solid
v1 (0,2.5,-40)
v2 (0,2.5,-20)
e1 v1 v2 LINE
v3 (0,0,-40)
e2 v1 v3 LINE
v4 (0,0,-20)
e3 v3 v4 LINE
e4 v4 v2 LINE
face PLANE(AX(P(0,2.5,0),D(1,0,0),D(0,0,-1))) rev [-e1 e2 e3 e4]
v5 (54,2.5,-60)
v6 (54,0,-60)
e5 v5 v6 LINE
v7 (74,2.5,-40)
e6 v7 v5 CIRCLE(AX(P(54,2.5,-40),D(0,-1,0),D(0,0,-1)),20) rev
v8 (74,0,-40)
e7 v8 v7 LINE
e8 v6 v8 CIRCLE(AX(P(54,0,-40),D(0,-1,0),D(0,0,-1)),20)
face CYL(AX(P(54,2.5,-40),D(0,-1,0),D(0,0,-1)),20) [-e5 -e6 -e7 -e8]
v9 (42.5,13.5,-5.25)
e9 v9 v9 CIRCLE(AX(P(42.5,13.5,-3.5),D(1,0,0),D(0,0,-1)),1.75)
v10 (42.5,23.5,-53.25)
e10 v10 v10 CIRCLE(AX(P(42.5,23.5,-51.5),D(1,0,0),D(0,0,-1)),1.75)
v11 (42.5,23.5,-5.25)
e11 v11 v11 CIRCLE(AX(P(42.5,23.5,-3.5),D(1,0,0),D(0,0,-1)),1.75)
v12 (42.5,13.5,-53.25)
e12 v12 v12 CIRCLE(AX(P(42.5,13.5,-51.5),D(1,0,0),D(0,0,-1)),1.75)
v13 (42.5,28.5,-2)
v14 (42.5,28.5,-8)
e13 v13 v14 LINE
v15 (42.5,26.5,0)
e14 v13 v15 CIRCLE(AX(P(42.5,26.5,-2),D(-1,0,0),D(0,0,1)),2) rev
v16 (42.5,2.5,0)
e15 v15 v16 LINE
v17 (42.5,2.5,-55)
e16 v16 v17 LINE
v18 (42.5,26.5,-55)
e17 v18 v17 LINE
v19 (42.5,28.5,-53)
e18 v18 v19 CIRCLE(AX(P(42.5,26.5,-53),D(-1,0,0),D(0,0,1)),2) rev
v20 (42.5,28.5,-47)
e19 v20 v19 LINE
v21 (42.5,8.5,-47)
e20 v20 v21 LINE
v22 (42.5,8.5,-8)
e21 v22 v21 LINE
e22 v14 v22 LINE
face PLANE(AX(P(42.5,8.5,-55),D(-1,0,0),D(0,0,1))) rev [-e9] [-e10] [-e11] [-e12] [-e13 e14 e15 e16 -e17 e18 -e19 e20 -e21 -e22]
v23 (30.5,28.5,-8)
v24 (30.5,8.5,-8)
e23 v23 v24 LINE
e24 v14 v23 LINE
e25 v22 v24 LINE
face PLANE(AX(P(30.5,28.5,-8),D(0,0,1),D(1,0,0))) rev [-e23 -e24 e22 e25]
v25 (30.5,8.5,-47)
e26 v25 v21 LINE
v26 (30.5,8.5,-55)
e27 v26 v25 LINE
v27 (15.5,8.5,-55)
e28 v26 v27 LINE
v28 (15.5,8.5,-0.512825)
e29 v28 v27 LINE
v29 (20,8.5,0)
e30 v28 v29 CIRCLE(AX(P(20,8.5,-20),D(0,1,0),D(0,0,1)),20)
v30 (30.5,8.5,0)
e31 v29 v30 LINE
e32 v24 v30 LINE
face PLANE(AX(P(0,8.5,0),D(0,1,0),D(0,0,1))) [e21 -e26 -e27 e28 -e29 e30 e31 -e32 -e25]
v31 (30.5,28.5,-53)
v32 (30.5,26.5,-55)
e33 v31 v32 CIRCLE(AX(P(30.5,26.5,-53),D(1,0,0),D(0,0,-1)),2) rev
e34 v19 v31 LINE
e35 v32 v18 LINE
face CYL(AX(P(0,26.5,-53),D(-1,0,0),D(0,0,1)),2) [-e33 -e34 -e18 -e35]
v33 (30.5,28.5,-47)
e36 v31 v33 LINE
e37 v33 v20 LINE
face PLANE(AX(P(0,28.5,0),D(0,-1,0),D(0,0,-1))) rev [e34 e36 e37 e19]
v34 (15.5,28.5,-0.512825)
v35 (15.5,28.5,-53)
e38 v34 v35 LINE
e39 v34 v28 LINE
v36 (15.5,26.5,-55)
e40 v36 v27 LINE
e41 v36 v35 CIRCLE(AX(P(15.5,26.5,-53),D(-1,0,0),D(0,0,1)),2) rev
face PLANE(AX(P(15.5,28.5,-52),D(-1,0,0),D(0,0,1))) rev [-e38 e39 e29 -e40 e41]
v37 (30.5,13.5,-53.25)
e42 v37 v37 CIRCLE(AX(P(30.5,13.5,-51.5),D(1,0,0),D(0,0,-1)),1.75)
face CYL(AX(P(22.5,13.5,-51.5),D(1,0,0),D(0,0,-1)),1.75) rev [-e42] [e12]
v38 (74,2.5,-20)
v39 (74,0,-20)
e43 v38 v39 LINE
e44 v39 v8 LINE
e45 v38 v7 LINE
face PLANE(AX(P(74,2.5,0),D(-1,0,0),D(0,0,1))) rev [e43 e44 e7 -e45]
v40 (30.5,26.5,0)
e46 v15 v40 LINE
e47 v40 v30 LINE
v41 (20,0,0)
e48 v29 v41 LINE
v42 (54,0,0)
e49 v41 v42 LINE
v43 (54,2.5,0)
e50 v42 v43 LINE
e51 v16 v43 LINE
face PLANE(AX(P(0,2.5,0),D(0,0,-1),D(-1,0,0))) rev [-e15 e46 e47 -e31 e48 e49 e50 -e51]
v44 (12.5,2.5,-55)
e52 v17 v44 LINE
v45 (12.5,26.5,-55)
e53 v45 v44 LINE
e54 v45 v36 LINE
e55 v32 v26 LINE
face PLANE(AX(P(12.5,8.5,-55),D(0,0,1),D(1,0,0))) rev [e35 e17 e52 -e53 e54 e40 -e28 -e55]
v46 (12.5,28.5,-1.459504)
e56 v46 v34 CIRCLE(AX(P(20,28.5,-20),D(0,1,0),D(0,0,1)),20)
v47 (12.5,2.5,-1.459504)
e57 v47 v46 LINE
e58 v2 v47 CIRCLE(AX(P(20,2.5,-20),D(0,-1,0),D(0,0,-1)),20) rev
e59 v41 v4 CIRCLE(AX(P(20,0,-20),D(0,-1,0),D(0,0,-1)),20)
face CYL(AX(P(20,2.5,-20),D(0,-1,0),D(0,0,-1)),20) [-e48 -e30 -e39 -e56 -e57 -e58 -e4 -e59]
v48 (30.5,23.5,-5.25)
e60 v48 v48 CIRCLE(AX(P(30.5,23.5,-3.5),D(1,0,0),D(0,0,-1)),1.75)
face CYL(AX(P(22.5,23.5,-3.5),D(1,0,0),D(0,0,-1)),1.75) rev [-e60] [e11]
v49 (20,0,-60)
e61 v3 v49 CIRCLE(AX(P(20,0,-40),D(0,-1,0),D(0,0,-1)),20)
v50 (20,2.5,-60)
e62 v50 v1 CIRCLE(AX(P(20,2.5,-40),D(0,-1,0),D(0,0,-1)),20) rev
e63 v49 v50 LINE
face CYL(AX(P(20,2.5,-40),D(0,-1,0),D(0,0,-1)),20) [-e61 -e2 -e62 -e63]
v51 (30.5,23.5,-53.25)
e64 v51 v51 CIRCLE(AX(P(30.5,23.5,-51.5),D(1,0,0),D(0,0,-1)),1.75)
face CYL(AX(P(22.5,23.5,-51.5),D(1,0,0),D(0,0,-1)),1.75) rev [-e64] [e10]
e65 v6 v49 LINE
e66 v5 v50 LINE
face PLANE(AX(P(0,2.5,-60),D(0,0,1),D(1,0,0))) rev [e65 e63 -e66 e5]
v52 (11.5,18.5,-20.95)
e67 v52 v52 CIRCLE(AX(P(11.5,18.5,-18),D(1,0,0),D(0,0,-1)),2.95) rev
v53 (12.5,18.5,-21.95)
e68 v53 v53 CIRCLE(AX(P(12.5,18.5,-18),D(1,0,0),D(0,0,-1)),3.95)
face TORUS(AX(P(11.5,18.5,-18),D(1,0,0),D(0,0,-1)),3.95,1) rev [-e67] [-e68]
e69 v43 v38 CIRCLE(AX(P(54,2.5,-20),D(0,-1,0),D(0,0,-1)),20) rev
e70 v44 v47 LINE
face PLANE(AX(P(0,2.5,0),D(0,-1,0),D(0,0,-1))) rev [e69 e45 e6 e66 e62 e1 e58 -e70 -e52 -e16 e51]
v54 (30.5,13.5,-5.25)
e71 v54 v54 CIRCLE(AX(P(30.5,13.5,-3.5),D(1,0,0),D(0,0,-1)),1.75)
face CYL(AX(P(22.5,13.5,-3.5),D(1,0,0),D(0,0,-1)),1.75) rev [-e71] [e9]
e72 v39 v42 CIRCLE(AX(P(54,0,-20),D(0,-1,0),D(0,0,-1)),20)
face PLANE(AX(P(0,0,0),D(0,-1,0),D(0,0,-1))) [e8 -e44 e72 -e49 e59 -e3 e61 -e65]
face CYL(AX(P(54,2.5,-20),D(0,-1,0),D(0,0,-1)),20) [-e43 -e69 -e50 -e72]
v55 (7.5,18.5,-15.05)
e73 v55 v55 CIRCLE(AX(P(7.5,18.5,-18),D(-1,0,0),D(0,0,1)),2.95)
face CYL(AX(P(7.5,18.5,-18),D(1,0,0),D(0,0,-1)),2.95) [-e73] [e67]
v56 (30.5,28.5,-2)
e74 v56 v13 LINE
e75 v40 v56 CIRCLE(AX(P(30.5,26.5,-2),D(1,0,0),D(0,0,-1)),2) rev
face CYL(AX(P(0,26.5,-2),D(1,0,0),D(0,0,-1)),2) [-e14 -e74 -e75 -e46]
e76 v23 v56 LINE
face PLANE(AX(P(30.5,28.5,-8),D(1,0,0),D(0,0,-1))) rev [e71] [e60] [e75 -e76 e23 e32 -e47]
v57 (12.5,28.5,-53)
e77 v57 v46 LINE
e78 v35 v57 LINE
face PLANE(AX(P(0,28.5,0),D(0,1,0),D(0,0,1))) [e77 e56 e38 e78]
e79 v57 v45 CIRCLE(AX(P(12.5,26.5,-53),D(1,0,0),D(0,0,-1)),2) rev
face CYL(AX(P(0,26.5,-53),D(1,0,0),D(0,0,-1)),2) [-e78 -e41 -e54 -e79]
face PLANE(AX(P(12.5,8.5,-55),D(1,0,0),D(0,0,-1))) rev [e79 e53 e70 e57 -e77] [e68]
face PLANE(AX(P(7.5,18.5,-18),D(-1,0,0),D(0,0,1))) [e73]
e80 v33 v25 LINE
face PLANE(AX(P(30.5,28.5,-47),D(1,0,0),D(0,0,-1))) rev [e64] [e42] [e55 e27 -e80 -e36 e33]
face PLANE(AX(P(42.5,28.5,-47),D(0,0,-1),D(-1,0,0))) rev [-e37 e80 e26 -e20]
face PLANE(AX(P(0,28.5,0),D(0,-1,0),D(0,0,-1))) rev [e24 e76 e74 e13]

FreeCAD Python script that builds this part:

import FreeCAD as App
import Part
import Sketcher
from FreeCAD import Vector


def edges_at(feature, points):
    """Names of the edges that pass closest to the given points."""
    edges = feature.Shape.Edges
    near = lambda p: min(range(len(edges)), key=lambda i: edges[i].distToShape(Part.Vertex(*p))[0])
    return sorted({f"Edge{near(p) + 1}" for p in points})

doc = App.newDocument("Part")
body = doc.addObject("PartDesign::Body", "Body")

# Sketch on XZ plane
sketch1 = body.newObject("Sketcher::SketchObject", "Sketch")
sketch1.AttachmentSupport = (doc.getObject("XZ_Plane"), [""])
sketch1.MapMode = "FlatFace"
sketch1.addGeometry(Part.LineSegment(Vector(0, -60, 0), Vector(0, 0, 0)), False)
sketch1.addGeometry(Part.LineSegment(Vector(0, 0, 0), Vector(74, 0, 0)), False)
sketch1.addGeometry(Part.LineSegment(Vector(74, 0, 0), Vector(74, -60, 0)), False)
sketch1.addGeometry(Part.LineSegment(Vector(74, -60, 0), Vector(0, -60, 0)), False)
sketch1.addConstraint(Sketcher.Constraint("Coincident", 0, 2, 1, 1))
sketch1.addConstraint(Sketcher.Constraint("Coincident", 1, 2, 2, 1))
sketch1.addConstraint(Sketcher.Constraint("Coincident", 2, 2, 3, 1))
sketch1.addConstraint(Sketcher.Constraint("Coincident", 3, 2, 0, 1))
sketch1.addConstraint(Sketcher.Constraint("Vertical", 0))
sketch1.addConstraint(Sketcher.Constraint("Horizontal", 1))
sketch1.addConstraint(Sketcher.Constraint("Vertical", 2))
sketch1.addConstraint(Sketcher.Constraint("Horizontal", 3))
sketch1.addConstraint(Sketcher.Constraint("Coincident", 0, 2, -1, 1))
sketch1.addConstraint(Sketcher.Constraint("DistanceX", 1, 1, 1, 2, 74.0))
sketch1.addConstraint(Sketcher.Constraint("DistanceY", 0, 1, 0, 2, 60.0))
pad1 = body.newObject("PartDesign::Pad", "Pad")
pad1.Profile = sketch1
pad1.Length = 2.5
pad1.Reversed = True

# Sketch on XZ plane
sketch2 = body.newObject("Sketcher::SketchObject", "Sketch001")
sketch2.AttachmentSupport = (doc.getObject("XZ_Plane"), [""])
sketch2.MapMode = "FlatFace"
sketch2.AttachmentOffset = App.Placement(Vector(0, 0, -2.5), App.Rotation())
sketch2.addGeometry(Part.LineSegment(Vector(12, -55, 0), Vector(12, 0, 0)), False)
sketch2.addGeometry(Part.LineSegment(Vector(12, 0, 0), Vector(42, 0, 0)), False)
sketch2.addGeometry(Part.LineSegment(Vector(42, 0, 0), Vector(42, -55, 0)), False)
sketch2.addGeometry(Part.LineSegment(Vector(42, -55, 0), Vector(12, -55, 0)), False)
sketch2.addConstraint(Sketcher.Constraint("Coincident", 0, 2, 1, 1))
sketch2.addConstraint(Sketcher.Constraint("Coincident", 1, 2, 2, 1))
sketch2.addConstraint(Sketcher.Constraint("Coincident", 2, 2, 3, 1))
sketch2.addConstraint(Sketcher.Constraint("Coincident", 3, 2, 0, 1))
sketch2.addConstraint(Sketcher.Constraint("Vertical", 0))
sketch2.addConstraint(Sketcher.Constraint("Horizontal", 1))
sketch2.addConstraint(Sketcher.Constraint("Vertical", 2))
sketch2.addConstraint(Sketcher.Constraint("Horizontal", 3))
sketch2.addConstraint(Sketcher.Constraint("PointOnObject", 0, 2, -1))
sketch2.addConstraint(Sketcher.Constraint("DistanceX", 1, 1, 1, 2, 30.0))
sketch2.addConstraint(Sketcher.Constraint("DistanceY", 0, 1, 0, 2, 55.0))
sketch2.addConstraint(Sketcher.Constraint("DistanceX", -1, 1, 0, 2, 12.5))
pad2 = body.newObject("PartDesign::Pad", "Pad001")
pad2.Profile = sketch2
pad2.Length = 6
pad2.Reversed = True

# Sketch on XZ plane
sketch3 = body.newObject("Sketcher::SketchObject", "Sketch002")
sketch3.AttachmentSupport = (doc.getObject("XZ_Plane"), [""])
sketch3.MapMode = "FlatFace"
sketch3.AttachmentOffset = App.Placement(Vector(0, 0, -8.5), App.Rotation())
sketch3.addGeometry(Part.LineSegment(Vector(30.5, -55, 0), Vector(30.5, -47, 0)), False)
sketch3.addGeometry(Part.LineSegment(Vector(30.5, -47, 0), Vector(42.5, -47, 0)), False)
sketch3.addGeometry(Part.LineSegment(Vector(42.5, -47, 0), Vector(42.5, -55, 0)), False)
sketch3.addGeometry(Part.LineSegment(Vector(42.5, -55, 0), Vector(30.5, -55, 0)), False)
sketch3.addGeometry(Part.LineSegment(Vector(12.5, -55, 0), Vector(12.5, 0, 0)), False)
sketch3.addGeometry(Part.LineSegment(Vector(12.5, 0, 0), Vector(15.5, 0, 0)), False)
sketch3.addGeometry(Part.LineSegment(Vector(15.5, 0, 0), Vector(15.5, -55, 0)), False)
sketch3.addGeometry(Part.LineSegment(Vector(15.5, -55, 0), Vector(12.5, -55, 0)), False)
sketch3.addGeometry(Part.LineSegment(Vector(30.5, -8, 0), Vector(30.5, 0, 0)), False)
sketch3.addGeometry(Part.LineSegment(Vector(30.5, 0, 0), Vector(42.5, 0, 0)), False)
sketch3.addGeometry(Part.LineSegment(Vector(42.5, 0, 0), Vector(42.5, -8, 0)), False)
sketch3.addGeometry(Part.LineSegment(Vector(42.5, -8, 0), Vector(30.5, -8, 0)), False)
sketch3.addConstraint(Sketcher.Constraint("Coincident", 0, 2, 1, 1))
sketch3.addConstraint(Sketcher.Constraint("Coincident", 1, 2, 2, 1))
sketch3.addConstraint(Sketcher.Constraint("Coincident", 2, 2, 3, 1))
sketch3.addConstraint(Sketcher.Constraint("Coincident", 3, 2, 0, 1))
sketch3.addConstraint(Sketcher.Constraint("Coincident", 4, 2, 5, 1))
sketch3.addConstraint(Sketcher.Constraint("Coincident", 5, 2, 6, 1))
sketch3.addConstraint(Sketcher.Constraint("Coincident", 6, 2, 7, 1))
sketch3.addConstraint(Sketcher.Constraint("Coincident", 7, 2, 4, 1))
sketch3.addConstraint(Sketcher.Constraint("Coincident", 8, 2, 9, 1))
sketch3.addConstraint(Sketcher.Constraint("Coincident", 9, 2, 10, 1))
sketch3.addConstraint(Sketcher.Constraint("Coincident", 10, 2, 11, 1))
sketch3.addConstraint(Sketcher.Constraint("Coincident", 11, 2, 8, 1))
sketch3.addConstraint(Sketcher.Constraint("Vertical", 0))
sketch3.addConstraint(Sketcher.Constraint("Horizontal", 1))
sketch3.addConstraint(Sketcher.Constraint("Vertical", 2))
sketch3.addConstraint(Sketcher.Constraint("Horizontal", 3))
sketch3.addConstraint(Sketcher.Constraint("Vertical", 4))
sketch3.addConstraint(Sketcher.Constraint("Horizontal", 5))
sketch3.addConstraint(Sketcher.Constraint("Vertical", 6))
sketch3.addConstraint(Sketcher.Constraint("Horizontal", 7))
sketch3.addConstraint(Sketcher.Constraint("Vertical", 8))
sketch3.addConstraint(Sketcher.Constraint("Horizontal", 9))
sketch3.addConstraint(Sketcher.Constraint("Vertical", 10))
sketch3.addConstraint(Sketcher.Constraint("Horizontal", 11))
sketch3.addConstraint(Sketcher.Constraint("PointOnObject", 4, 2, -1))
sketch3.addConstraint(Sketcher.Constraint("PointOnObject", 8, 2, -1))
sketch3.addConstraint(Sketcher.Constraint("Horizontal", 3, 2, 6, 2))
sketch3.addConstraint(Sketcher.Constraint("Vertical", 3, 2, 8, 2))
sketch3.addConstraint(Sketcher.Constraint("Vertical", 2, 2, 9, 2))
sketch3.addConstraint(Sketcher.Constraint("Equal", 2, 8))
sketch3.addConstraint(Sketcher.Constraint("DistanceX", 1, 1, 1, 2, 12.0))
sketch3.addConstraint(Sketcher.Constraint("DistanceX", 5, 1, 5, 2, 3.0))
sketch3.addConstraint(Sketcher.Constraint("DistanceY", 0, 1, 0, 2, 8.0))
sketch3.addConstraint(Sketcher.Constraint("DistanceY", 4, 1, 4, 2, 55.0))
sketch3.addConstraint(Sketcher.Constraint("DistanceX", 4, 2, 0, 2, 18.0))
sketch3.addConstraint(Sketcher.Constraint("DistanceX", -1, 1, 0, 2, 30.5))
pad3 = body.newObject("PartDesign::Pad", "Pad002")
pad3.Profile = sketch3
pad3.Length = 20
pad3.Reversed = True

# Sketch on YZ plane
sketch4 = body.newObject("Sketcher::SketchObject", "Sketch003")
sketch4.AttachmentSupport = (doc.getObject("YZ_Plane"), [""])
sketch4.MapMode = "FlatFace"
sketch4.AttachmentOffset = App.Placement(Vector(0, 0, 42.5), App.Rotation())
sketch4.addGeometry(Part.Circle(Vector(23.5, -3.5, 0), Vector(0, 0, 1), 1.8), False)
sketch4.addGeometry(Part.Circle(Vector(13.5, -3.5, 0), Vector(0, 0, 1), 1.8), False)
sketch4.addGeometry(Part.Circle(Vector(23.5, -51.5, 0), Vector(0, 0, 1), 1.8), False)
sketch4.addGeometry(Part.Circle(Vector(13.5, -51.5, 0), Vector(0, 0, 1), 1.8), False)
sketch4.addConstraint(Sketcher.Constraint("Equal", 0, 1))
sketch4.addConstraint(Sketcher.Constraint("Equal", 1, 2))
sketch4.addConstraint(Sketcher.Constraint("Equal", 2, 3))
sketch4.addConstraint(Sketcher.Constraint("Horizontal", 0, 3, 1, 3))
sketch4.addConstraint(Sketcher.Constraint("Horizontal", 2, 3, 3, 3))
sketch4.addConstraint(Sketcher.Constraint("Vertical", 0, 3, 2, 3))
sketch4.addConstraint(Sketcher.Constraint("Vertical", 1, 3, 3, 3))
sketch4.addConstraint(Sketcher.Constraint("Diameter", 0, 3.5))
sketch4.addConstraint(Sketcher.Constraint("DistanceX", 1, 3, 0, 3, 10.0))
sketch4.addConstraint(Sketcher.Constraint("DistanceY", 2, 3, 0, 3, 48.0))
sketch4.addConstraint(Sketcher.Constraint("DistanceX", -1, 1, 0, 3, 23.5))
sketch4.addConstraint(Sketcher.Constraint("DistanceY", 0, 3, -1, 1, 3.5))
pocket1 = body.newObject("PartDesign::Pocket", "Pocket")
pocket1.Profile = sketch4
pocket1.Length = 20

# Sketch on YZ plane
sketch5 = body.newObject("Sketcher::SketchObject", "Sketch004")
sketch5.AttachmentSupport = (doc.getObject("YZ_Plane"), [""])
sketch5.MapMode = "FlatFace"
sketch5.AttachmentOffset = App.Placement(Vector(0, 0, 12.5), App.Rotation())
sketch5.addGeometry(Part.Circle(Vector(18.5, -18, 0), Vector(0, 0, 1), 3), False)
sketch5.addConstraint(Sketcher.Constraint("Diameter", 0, 5.9))
sketch5.addConstraint(Sketcher.Constraint("DistanceY", 0, 3, -1, 1, 18.0))
sketch5.addConstraint(Sketcher.Constraint("DistanceX", -1, 1, 0, 3, 18.5))
pad4 = body.newObject("PartDesign::Pad", "Pad003")
pad4.Profile = sketch5
pad4.Length = 5
pad4.Reversed = True
doc.recompute()

fillet = body.newObject("PartDesign::Fillet", "Fillet")
fillet.Base = (pad4, edges_at(pad4, [(12.5, 18.5, -20.95)]))
fillet.Radius = 1
doc.recompute()

fillet2 = body.newObject("PartDesign::Fillet", "Fillet001")
fillet2.Base = (fillet, edges_at(fillet, [
    (74, 1.25, -60),
    (74, 1.25, 0),
    (0, 1.25, 0),
    (0, 1.25, -60),
]))
fillet2.Radius = 20
doc.recompute()

fillet3 = body.newObject("PartDesign::Fillet", "Fillet002")
fillet3.Base = (fillet2, edges_at(fillet2, [(36.5, 28.5, 0), (14, 28.5, -55), (36.5, 28.5, -55)]))
fillet3.Radius = 2

doc.recompute()
